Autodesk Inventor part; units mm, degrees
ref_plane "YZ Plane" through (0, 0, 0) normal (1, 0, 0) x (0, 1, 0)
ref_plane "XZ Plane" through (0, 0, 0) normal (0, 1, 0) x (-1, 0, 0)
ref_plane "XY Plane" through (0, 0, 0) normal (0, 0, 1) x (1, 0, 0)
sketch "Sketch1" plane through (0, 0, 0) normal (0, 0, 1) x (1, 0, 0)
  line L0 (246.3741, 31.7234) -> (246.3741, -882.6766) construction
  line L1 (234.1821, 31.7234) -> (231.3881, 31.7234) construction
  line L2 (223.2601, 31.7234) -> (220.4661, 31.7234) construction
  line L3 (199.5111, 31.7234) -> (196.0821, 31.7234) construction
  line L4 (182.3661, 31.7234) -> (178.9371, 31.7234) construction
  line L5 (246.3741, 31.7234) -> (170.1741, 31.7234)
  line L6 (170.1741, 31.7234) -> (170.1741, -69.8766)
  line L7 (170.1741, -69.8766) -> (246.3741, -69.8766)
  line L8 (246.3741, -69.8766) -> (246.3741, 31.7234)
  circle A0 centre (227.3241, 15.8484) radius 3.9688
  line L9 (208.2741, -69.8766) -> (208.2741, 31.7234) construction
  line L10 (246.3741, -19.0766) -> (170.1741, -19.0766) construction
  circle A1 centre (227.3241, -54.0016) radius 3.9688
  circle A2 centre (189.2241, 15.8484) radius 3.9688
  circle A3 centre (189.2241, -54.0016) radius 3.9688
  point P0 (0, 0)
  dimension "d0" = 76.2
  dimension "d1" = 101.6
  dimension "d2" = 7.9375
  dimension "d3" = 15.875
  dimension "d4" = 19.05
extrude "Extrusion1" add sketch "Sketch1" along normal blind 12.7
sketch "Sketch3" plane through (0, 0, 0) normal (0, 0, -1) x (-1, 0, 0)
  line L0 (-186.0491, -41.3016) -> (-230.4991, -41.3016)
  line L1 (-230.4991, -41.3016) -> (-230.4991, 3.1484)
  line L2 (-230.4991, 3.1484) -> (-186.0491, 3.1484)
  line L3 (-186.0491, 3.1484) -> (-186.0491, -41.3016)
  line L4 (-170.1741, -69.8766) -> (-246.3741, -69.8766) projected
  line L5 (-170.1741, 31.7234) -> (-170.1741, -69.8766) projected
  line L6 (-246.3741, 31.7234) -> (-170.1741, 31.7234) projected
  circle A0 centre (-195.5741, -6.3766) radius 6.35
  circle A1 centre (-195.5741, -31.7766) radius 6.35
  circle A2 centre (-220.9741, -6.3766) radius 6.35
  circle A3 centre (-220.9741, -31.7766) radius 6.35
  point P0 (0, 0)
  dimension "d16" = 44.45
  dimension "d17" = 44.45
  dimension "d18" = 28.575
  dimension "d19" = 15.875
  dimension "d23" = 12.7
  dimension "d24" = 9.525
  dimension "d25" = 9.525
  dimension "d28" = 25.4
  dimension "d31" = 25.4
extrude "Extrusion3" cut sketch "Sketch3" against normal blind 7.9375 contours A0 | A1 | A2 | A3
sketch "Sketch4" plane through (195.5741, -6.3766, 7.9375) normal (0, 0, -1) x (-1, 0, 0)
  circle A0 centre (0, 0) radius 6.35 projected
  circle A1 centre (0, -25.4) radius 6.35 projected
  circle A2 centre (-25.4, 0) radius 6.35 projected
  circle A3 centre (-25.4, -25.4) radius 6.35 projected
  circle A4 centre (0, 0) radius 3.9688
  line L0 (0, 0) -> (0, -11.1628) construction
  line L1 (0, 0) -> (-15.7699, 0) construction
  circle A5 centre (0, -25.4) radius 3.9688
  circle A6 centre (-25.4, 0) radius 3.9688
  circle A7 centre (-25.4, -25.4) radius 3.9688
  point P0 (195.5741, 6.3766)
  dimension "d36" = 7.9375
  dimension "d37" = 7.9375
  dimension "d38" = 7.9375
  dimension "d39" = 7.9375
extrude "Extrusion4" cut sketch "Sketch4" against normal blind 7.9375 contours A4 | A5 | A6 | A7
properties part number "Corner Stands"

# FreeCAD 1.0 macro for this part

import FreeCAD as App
import Part
import Sketcher
Q = App.Units.Quantity


def add_polygon(sketch, points):
    """Adds a closed chain of lines whose ends are joined by coincident constraints."""
    first, n = sketch.GeometryCount, len(points)
    for a, b in zip(points, points[1:] + points[:1]):
        sketch.addGeometry(Part.LineSegment(App.Vector(*a, 0), App.Vector(*b, 0)), False)
    for i in range(n):
        sketch.addConstraint(Sketcher.Constraint("Coincident", first + i, 2, first + (i + 1) % n, 1))

doc = App.newDocument("Part")
params = doc.addObject("Spreadsheet::Sheet", "Params")
for row, (alias, value) in enumerate([
    ("sketch1_width", "3 in"),
    ("sketch1_height", "4 in"),
    ("sketch1_diameter", "0.3125 in"),
    ("pad1_length", "0.5 in"),
    ("sketch2_diameter", "0.5 in"),
    ("pocket1_length", "0.3125 in"),
    ("sketch3_diameter", "0.3125 in"),
    ("pocket2_length", "0.3125 in"),
], start=1):
    params.set(f"A{row}", alias)
    params.set(f"B{row}", "=" + value)
    params.setAlias(f"B{row}", alias)

body = doc.addObject("PartDesign::Body", "Body")

sketch1 = body.newObject("Sketcher::SketchObject", "Sketch")
sketch1.AttachmentSupport = (doc.getObject("XY_Plane"), [""])
sketch1.MapMode = "FlatFace"
add_polygon(sketch1, [(246.4, -69.9), (246.4, 31.7), (170.2, 31.7), (170.2, -69.9)])
sketch1.addGeometry(Part.Circle(App.Vector(189.2, -54, 0), App.Vector(0, 0, 1), 4), False)
sketch1.addGeometry(Part.Circle(App.Vector(227.3, -54, 0), App.Vector(0, 0, 1), 4), False)
sketch1.addGeometry(Part.Circle(App.Vector(189.2, 15.8, 0), App.Vector(0, 0, 1), 4), False)
sketch1.addGeometry(Part.Circle(App.Vector(227.3, 15.8, 0), App.Vector(0, 0, 1), 4), False)
sketch1.addConstraint([
    Sketcher.Constraint("Vertical", 0),
    Sketcher.Constraint("Horizontal", 1),
    Sketcher.Constraint("Vertical", 2),
    Sketcher.Constraint("Horizontal", 3),
    Sketcher.Constraint("Equal", 4, 5),
    Sketcher.Constraint("Equal", 5, 6),
    Sketcher.Constraint("Equal", 6, 7),
    Sketcher.Constraint("Horizontal", 4, 3, 5, 3),
    Sketcher.Constraint("Horizontal", 6, 3, 7, 3),
    Sketcher.Constraint("Vertical", 4, 3, 6, 3),
    Sketcher.Constraint("Vertical", 5, 3, 7, 3),
    Sketcher.Constraint("DistanceX", 1, 2, 1, 1, Q("3 in")),
    Sketcher.Constraint("DistanceY", 0, 1, 0, 2, Q("4 in")),
    Sketcher.Constraint("Diameter", 4, Q("0.3125 in")),
    Sketcher.Constraint("DistanceX", 7, 3, 0, 2, Q("0.75 in")),
    Sketcher.Constraint("DistanceX", 1, 2, 6, 3, Q("0.75 in")),
    Sketcher.Constraint("DistanceY", 7, 3, 0, 2, Q("0.625 in")),
    Sketcher.Constraint("DistanceY", 2, 2, 4, 3, Q("0.625 in")),
    Sketcher.Constraint("DistanceX", -1, 1, 4, 3, 189.224),
    Sketcher.Constraint("DistanceY", 4, 3, -1, 1, 54.0016),
])
sketch1.setExpression("Constraints[15]", "Params.sketch1_width")
sketch1.setExpression("Constraints[16]", "Params.sketch1_height")
sketch1.setExpression("Constraints[17]", "Params.sketch1_diameter")
pad1 = body.newObject("PartDesign::Pad", "Pad")
pad1.Profile = sketch1
pad1.setExpression("Length", "Params.pad1_length")

sketch2 = body.newObject("Sketcher::SketchObject", "Sketch001")
sketch2.AttachmentSupport = (doc.getObject("XY_Plane"), [""])
sketch2.MapMode = "FlatFace"
sketch2.addGeometry([
    Part.Circle(App.Vector(196, -6, 0), App.Vector(0, 0, 1), 6),
    Part.Circle(App.Vector(196, -32, 0), App.Vector(0, 0, 1), 6),
    Part.Circle(App.Vector(221, -6, 0), App.Vector(0, 0, 1), 6),
    Part.Circle(App.Vector(221, -32, 0), App.Vector(0, 0, 1), 6),
], False)
sketch2.addConstraint([
    Sketcher.Constraint("Equal", 0, 1),
    Sketcher.Constraint("Equal", 1, 2),
    Sketcher.Constraint("Equal", 2, 3),
    Sketcher.Constraint("Horizontal", 0, 3, 2, 3),
    Sketcher.Constraint("Horizontal", 1, 3, 3, 3),
    Sketcher.Constraint("Vertical", 0, 3, 1, 3),
    Sketcher.Constraint("Vertical", 2, 3, 3, 3),
    Sketcher.Constraint("Diameter", 0, Q("0.5 in")),
    Sketcher.Constraint("DistanceY", 1, 3, 0, 3, Q("1 in")),
    Sketcher.Constraint("DistanceX", 0, 3, 2, 3, Q("1 in")),
    Sketcher.Constraint("DistanceX", -1, 1, 0, 3, 195.574),
    Sketcher.Constraint("DistanceY", 0, 3, -1, 1, 6.3766),
])
sketch2.setExpression("Constraints[7]", "Params.sketch2_diameter")
pocket1 = body.newObject("PartDesign::Pocket", "Pocket")
pocket1.Profile = sketch2
pocket1.setExpression("Length", "Params.pocket1_length")
pocket1.Reversed = True

sketch3 = body.newObject("Sketcher::SketchObject", "Sketch002")
sketch3.AttachmentSupport = (doc.getObject("XY_Plane"), [""])
sketch3.MapMode = "FlatFace"
sketch3.AttachmentOffset = App.Placement(App.Vector(0, 0, 0.3125 * 25.4), App.Rotation())
sketch3.addGeometry([
    Part.Circle(App.Vector(195.6, -6.4, 0), App.Vector(0, 0, 1), 4),
    Part.Circle(App.Vector(195.6, -31.8, 0), App.Vector(0, 0, 1), 4),
    Part.Circle(App.Vector(221, -6.4, 0), App.Vector(0, 0, 1), 4),
    Part.Circle(App.Vector(221, -31.8, 0), App.Vector(0, 0, 1), 4),
], False)
sketch3.addConstraint([
    Sketcher.Constraint("Equal", 0, 1),
    Sketcher.Constraint("Equal", 1, 2),
    Sketcher.Constraint("Equal", 2, 3),
    Sketcher.Constraint("Horizontal", 0, 3, 2, 3),
    Sketcher.Constraint("Horizontal", 1, 3, 3, 3),
    Sketcher.Constraint("Vertical", 0, 3, 1, 3),
    Sketcher.Constraint("Vertical", 2, 3, 3, 3),
    Sketcher.Constraint("Diameter", 0, Q("0.3125 in")),
    Sketcher.Constraint("DistanceY", 1, 3, 0, 3, Q("1 in")),
    Sketcher.Constraint("DistanceX", 0, 3, 2, 3, Q("1 in")),
    Sketcher.Constraint("DistanceX", -1, 1, 0, 3, 195.574),
    Sketcher.Constraint("DistanceY", 0, 3, -1, 1, 6.3766),
])
sketch3.setExpression("Constraints[7]", "Params.sketch3_diameter")
pocket2 = body.newObject("PartDesign::Pocket", "Pocket001")
pocket2.Profile = sketch3
pocket2.setExpression("Length", "Params.pocket2_length")
pocket2.Reversed = True

doc.recompute()
